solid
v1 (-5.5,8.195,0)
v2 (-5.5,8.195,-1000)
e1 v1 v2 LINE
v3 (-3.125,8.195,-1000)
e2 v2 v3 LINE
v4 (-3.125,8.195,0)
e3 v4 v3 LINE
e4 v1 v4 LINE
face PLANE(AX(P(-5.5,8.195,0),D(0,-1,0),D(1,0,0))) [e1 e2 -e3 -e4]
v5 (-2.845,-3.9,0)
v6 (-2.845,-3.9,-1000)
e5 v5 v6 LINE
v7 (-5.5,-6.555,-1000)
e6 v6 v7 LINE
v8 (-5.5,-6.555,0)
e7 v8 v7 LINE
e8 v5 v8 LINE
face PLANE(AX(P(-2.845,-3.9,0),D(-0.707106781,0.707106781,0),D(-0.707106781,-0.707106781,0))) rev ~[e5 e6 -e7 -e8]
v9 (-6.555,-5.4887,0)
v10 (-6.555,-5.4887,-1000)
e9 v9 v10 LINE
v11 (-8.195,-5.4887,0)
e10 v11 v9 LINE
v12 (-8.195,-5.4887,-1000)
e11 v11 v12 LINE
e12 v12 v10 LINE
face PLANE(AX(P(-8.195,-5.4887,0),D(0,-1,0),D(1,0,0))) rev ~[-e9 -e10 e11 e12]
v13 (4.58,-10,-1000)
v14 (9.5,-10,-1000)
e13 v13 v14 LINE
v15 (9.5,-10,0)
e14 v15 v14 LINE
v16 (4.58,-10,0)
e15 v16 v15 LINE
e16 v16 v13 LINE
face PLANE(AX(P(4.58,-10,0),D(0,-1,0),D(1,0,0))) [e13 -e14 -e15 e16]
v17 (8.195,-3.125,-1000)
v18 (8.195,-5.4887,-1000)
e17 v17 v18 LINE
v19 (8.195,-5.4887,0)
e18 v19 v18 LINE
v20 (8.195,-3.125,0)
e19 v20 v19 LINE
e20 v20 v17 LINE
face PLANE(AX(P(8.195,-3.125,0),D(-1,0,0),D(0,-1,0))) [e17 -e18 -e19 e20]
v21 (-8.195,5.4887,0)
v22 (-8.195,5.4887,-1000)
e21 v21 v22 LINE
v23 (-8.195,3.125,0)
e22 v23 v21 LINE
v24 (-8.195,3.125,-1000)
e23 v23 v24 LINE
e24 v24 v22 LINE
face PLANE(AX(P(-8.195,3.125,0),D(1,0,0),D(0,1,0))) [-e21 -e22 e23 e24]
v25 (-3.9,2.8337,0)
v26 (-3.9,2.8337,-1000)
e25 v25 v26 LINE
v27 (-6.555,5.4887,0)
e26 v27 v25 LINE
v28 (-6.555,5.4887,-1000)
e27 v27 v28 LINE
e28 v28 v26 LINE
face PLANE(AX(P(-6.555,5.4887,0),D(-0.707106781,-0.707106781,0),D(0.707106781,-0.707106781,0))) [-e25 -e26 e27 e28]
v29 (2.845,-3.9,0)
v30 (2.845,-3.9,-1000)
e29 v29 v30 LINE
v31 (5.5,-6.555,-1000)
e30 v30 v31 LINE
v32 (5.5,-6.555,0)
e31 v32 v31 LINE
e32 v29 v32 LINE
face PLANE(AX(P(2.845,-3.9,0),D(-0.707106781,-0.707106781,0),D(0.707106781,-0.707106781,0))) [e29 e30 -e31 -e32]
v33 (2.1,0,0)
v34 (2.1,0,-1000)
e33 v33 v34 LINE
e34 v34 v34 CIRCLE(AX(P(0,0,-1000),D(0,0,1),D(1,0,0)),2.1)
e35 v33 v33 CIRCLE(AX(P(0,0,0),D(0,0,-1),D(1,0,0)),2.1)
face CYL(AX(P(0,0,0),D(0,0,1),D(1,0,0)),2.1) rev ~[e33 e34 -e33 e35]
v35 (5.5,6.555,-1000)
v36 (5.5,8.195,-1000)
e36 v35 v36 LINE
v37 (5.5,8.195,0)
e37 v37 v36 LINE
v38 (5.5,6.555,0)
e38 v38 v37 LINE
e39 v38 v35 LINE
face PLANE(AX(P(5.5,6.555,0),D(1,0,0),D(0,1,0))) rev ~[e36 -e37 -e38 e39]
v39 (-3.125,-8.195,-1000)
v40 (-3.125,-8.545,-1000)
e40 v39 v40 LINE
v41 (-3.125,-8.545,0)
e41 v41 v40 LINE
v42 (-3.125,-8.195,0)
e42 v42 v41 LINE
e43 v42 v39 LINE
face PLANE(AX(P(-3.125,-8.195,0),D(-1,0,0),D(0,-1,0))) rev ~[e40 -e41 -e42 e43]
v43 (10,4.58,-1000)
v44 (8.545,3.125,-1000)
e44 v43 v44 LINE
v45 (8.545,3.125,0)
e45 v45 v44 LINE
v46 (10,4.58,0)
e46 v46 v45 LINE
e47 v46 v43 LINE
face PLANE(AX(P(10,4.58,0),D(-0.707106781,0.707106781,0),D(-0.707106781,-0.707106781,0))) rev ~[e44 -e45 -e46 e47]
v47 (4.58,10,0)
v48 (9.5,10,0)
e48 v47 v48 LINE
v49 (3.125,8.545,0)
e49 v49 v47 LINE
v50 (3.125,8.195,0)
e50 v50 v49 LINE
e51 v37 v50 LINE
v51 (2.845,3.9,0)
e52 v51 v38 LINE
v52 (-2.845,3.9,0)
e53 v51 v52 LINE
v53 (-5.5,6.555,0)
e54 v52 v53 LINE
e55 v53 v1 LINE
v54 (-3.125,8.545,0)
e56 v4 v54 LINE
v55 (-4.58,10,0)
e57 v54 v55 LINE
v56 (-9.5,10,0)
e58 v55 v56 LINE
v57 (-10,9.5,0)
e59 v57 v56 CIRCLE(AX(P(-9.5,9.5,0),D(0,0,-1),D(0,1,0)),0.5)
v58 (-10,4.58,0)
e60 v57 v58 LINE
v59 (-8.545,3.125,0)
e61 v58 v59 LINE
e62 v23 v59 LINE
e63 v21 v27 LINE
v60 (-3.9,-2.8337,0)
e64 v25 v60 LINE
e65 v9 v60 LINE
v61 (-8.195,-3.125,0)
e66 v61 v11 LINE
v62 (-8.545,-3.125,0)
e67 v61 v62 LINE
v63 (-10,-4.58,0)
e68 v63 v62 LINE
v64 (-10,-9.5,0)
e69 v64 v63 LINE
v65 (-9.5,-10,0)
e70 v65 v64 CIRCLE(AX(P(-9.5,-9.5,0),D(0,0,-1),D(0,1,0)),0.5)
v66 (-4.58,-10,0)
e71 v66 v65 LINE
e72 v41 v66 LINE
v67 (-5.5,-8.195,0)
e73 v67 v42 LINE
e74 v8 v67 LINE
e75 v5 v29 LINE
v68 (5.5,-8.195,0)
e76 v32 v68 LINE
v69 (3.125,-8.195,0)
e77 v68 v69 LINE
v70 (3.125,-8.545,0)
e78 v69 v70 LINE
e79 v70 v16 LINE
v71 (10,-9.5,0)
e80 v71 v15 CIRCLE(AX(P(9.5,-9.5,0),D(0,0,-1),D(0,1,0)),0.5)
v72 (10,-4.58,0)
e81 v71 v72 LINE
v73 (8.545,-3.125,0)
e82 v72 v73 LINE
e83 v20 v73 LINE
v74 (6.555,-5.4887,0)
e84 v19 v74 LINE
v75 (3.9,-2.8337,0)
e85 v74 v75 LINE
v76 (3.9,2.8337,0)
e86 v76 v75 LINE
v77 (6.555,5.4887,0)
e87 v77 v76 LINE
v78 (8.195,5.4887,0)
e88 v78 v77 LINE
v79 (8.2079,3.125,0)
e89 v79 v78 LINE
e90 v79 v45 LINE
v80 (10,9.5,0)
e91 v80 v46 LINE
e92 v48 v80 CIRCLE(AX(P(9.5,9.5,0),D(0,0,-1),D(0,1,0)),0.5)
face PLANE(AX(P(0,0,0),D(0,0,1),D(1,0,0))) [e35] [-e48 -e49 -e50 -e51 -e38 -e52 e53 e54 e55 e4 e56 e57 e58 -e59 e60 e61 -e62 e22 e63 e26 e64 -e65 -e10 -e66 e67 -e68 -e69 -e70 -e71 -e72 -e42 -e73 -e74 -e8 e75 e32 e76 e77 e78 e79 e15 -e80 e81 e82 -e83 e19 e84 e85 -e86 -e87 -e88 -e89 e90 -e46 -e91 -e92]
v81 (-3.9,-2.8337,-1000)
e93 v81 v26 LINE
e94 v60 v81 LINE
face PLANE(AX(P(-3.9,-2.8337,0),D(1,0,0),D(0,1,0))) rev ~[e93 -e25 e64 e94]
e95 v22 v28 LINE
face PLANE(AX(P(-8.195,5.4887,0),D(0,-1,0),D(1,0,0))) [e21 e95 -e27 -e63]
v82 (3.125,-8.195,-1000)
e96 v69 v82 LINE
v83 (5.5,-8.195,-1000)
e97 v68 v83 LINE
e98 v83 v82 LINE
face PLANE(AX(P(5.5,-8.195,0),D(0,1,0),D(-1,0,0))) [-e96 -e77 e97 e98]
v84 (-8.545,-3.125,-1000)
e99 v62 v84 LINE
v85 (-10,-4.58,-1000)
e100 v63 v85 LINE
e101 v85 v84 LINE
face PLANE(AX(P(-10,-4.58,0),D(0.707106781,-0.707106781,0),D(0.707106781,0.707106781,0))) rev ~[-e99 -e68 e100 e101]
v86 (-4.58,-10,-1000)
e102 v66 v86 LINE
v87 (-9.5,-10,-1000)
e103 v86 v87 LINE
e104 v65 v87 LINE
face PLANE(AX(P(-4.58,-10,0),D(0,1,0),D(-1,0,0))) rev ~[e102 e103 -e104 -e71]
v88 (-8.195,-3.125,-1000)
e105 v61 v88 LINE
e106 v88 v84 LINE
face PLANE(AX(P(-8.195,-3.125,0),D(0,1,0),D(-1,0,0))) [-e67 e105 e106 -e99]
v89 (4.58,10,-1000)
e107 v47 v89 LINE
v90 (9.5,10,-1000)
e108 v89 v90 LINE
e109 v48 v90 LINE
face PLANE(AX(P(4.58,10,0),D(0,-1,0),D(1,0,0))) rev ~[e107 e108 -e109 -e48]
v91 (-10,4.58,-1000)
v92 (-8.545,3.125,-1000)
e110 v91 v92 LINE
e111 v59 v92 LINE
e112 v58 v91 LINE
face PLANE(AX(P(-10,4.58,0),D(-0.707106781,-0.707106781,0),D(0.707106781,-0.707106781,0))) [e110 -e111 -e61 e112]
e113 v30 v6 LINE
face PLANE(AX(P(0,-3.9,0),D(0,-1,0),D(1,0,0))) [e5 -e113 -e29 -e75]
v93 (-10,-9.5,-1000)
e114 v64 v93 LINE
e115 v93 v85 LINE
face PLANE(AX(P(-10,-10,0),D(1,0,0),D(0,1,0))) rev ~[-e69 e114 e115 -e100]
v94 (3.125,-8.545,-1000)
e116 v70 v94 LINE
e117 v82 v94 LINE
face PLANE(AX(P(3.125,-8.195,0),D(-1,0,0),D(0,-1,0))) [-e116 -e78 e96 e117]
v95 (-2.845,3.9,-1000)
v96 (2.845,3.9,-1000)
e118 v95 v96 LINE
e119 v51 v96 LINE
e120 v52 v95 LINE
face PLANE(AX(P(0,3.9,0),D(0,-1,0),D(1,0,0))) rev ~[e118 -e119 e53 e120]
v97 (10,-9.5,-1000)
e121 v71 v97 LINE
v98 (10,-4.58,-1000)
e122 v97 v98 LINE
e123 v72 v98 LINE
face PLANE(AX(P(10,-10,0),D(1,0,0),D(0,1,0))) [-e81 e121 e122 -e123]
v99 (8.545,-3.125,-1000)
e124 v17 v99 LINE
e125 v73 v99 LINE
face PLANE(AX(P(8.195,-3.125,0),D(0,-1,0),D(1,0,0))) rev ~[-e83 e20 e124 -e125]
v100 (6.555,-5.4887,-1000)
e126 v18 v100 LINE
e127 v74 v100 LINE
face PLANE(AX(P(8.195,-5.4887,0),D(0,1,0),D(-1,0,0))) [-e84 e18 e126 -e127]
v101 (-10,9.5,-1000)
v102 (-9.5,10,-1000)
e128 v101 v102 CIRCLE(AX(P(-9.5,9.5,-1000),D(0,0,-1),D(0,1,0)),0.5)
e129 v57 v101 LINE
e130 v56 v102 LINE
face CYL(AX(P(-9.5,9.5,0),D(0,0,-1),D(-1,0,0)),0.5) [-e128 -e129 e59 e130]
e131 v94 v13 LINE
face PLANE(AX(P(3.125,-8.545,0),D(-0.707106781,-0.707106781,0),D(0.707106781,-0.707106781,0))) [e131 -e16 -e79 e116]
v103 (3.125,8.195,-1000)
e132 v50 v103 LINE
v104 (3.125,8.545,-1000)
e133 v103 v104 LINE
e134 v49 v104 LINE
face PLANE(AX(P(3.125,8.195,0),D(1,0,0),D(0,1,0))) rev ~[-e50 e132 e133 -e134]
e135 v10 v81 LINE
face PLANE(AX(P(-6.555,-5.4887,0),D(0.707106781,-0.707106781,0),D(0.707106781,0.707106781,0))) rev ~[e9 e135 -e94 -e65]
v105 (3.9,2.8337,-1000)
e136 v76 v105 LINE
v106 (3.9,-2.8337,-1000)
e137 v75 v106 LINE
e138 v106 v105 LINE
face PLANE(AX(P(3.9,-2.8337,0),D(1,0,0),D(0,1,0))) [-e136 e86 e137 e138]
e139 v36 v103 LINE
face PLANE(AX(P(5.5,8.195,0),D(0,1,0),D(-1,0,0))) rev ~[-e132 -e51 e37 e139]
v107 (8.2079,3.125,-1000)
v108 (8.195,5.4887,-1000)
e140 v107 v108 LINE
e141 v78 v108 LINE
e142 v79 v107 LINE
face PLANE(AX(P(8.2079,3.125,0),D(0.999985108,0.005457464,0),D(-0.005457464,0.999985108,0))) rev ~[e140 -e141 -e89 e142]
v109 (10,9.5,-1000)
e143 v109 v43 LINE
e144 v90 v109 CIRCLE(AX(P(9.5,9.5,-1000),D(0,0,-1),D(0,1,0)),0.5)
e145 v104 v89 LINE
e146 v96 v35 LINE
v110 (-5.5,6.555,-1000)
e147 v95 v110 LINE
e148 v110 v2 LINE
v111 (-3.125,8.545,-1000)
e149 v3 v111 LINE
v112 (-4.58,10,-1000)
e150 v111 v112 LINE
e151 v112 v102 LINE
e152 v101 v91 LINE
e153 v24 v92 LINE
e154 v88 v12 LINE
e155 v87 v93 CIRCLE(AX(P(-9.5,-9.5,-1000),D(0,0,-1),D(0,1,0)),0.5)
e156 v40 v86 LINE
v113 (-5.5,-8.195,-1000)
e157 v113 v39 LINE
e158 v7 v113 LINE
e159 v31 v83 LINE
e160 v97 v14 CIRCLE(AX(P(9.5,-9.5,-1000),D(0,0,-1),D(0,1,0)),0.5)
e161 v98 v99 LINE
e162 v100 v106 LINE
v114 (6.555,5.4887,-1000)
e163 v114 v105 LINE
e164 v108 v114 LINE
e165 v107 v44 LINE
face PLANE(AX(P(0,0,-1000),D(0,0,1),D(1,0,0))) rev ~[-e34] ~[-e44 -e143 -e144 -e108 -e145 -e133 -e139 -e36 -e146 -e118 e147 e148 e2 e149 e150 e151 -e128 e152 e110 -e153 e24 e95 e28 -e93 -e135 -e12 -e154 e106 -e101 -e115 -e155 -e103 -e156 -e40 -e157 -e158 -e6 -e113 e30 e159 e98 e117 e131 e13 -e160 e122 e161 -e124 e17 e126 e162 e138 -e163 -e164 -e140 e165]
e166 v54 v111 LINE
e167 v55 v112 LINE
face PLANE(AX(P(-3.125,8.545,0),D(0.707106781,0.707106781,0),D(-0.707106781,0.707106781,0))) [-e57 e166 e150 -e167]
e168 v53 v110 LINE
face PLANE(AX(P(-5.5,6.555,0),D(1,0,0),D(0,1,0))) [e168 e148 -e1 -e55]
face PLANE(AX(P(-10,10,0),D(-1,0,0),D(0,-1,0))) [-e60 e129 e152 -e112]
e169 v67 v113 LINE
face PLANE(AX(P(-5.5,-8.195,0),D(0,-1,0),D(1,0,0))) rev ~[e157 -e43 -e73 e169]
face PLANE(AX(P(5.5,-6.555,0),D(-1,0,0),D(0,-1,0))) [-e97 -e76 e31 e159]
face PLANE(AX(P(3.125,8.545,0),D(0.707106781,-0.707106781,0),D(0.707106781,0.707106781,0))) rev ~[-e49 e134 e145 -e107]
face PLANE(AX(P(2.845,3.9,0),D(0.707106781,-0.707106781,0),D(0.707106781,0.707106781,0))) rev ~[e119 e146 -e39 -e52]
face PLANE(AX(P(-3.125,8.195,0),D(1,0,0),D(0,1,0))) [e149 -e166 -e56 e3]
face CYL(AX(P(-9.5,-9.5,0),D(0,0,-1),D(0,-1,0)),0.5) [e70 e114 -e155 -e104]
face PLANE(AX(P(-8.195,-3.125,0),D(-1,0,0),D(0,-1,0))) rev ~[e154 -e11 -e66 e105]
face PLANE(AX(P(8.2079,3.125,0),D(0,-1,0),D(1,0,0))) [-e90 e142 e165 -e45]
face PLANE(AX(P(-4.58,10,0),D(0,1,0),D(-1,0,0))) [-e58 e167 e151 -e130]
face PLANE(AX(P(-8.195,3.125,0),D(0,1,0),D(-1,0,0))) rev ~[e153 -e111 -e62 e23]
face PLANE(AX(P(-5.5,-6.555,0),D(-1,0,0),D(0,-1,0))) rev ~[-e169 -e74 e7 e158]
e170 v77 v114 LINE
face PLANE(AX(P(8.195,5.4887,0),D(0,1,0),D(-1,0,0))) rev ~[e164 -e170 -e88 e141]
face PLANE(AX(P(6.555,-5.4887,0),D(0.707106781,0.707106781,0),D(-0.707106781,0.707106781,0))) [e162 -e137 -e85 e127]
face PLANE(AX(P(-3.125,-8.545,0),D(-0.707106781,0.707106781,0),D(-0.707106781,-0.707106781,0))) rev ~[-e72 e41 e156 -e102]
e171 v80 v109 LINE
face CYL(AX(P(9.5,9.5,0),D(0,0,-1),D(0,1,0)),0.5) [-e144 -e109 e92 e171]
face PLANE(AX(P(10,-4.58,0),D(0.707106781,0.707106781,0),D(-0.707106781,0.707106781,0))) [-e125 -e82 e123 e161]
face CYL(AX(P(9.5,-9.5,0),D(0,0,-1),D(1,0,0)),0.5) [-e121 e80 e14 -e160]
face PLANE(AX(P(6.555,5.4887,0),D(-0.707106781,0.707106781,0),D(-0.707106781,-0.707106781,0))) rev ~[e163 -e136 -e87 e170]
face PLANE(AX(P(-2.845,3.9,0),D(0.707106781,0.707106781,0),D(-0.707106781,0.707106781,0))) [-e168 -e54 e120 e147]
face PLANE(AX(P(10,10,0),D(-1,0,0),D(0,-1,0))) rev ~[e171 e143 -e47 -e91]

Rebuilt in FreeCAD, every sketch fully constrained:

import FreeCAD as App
import Part
import Sketcher

V = App.Vector
Q = App.Units.Quantity


def edges_at(feature, points):
    """Names of the edges that pass closest to the given points."""
    edges = feature.Shape.Edges
    near = lambda p: min(range(len(edges)), key=lambda i: edges[i].distToShape(Part.Vertex(*p))[0])
    return sorted({f"Edge{near(p) + 1}" for p in points})


def add_polygon(sketch, points):
    """Adds a closed chain of lines whose ends are joined by coincident constraints."""
    first, n = sketch.GeometryCount, len(points)
    for a, b in zip(points, points[1:] + points[:1]):
        sketch.addGeometry(Part.LineSegment(App.Vector(*a, 0), App.Vector(*b, 0)), False)
    for i in range(n):
        sketch.addConstraint(Sketcher.Constraint("Coincident", first + i, 2, first + (i + 1) % n, 1))

doc = App.newDocument("Part")
body = doc.addObject("PartDesign::Body", "Body")

sketch1 = doc.addObject("Sketcher::SketchObject", "Sketch")
body.addObject(sketch1)
sketch1.AttachmentSupport = (doc.XY_Plane, [""])
sketch1.MapMode = "FlatFace"
add_polygon(sketch1, [(3.9, -2.8337), (3.9, 2.8337), (6.555, 5.4887), (8.195, 5.4887), (8.2079, 3.125), (8.545, 3.125), (10, 4.58), (10, 10), (4.58, 10), (3.125, 8.545), (3.125, 8.195), (5.5, 8.195), (5.5, 6.555), (2.845, 3.9), (-2.845, 3.9), (-5.5, 6.555), (-5.5, 8.195), (-3.125, 8.195), (-3.125, 8.545), (-4.58, 10), (-10, 10), (-10, 4.58), (-8.545, 3.125), (-8.195, 3.125), (-8.195, 5.4887), (-6.555, 5.4887), (-3.9, 2.8337), (-3.9, -2.8337), (-6.555, -5.4887), (-8.195, -5.4887), (-8.195, -3.125), (-8.545, -3.125), (-10, -4.58), (-10, -10), (-4.58, -10), (-3.125, -8.545), (-3.125, -8.195), (-5.5, -8.195), (-5.5, -6.555), (-2.845, -3.9), (2.845, -3.9), (5.5, -6.555), (5.5, -8.195), (3.125, -8.195), (3.125, -8.545), (4.58, -10), (10, -10), (10, -4.58), (8.545, -3.125), (8.195, -3.125), (8.195, -5.4887), (6.555, -5.4887)])
sketch1.addGeometry(Part.Circle(V(0, 0, 0), V(0, 0, 1), 2.1), False)
sketch1.addConstraint([
    Sketcher.Constraint("Vertical", 0),
    Sketcher.Constraint("Horizontal", 2),
    Sketcher.Constraint("Horizontal", 4),
    Sketcher.Constraint("Vertical", 6),
    Sketcher.Constraint("Horizontal", 7),
    Sketcher.Constraint("Vertical", 9),
    Sketcher.Constraint("Horizontal", 10),
    Sketcher.Constraint("Vertical", 11),
    Sketcher.Constraint("Horizontal", 13),
    Sketcher.Constraint("Vertical", 15),
    Sketcher.Constraint("Horizontal", 16),
    Sketcher.Constraint("Vertical", 17),
    Sketcher.Constraint("Horizontal", 19),
    Sketcher.Constraint("Vertical", 20),
    Sketcher.Constraint("Horizontal", 22),
    Sketcher.Constraint("Vertical", 23),
    Sketcher.Constraint("Horizontal", 24),
    Sketcher.Constraint("Vertical", 26),
    Sketcher.Constraint("Horizontal", 28),
    Sketcher.Constraint("Vertical", 29),
    Sketcher.Constraint("Horizontal", 30),
    Sketcher.Constraint("Vertical", 32),
    Sketcher.Constraint("Horizontal", 33),
    Sketcher.Constraint("Vertical", 35),
    Sketcher.Constraint("Horizontal", 36),
    Sketcher.Constraint("Vertical", 37),
    Sketcher.Constraint("Horizontal", 39),
    Sketcher.Constraint("Vertical", 41),
    Sketcher.Constraint("Horizontal", 42),
    Sketcher.Constraint("Vertical", 43),
    Sketcher.Constraint("Horizontal", 45),
    Sketcher.Constraint("Vertical", 46),
    Sketcher.Constraint("Horizontal", 48),
    Sketcher.Constraint("Vertical", 49),
    Sketcher.Constraint("Horizontal", 50),
    Sketcher.Constraint("Coincident", 52, 3, -1, 1),
    Sketcher.Constraint("Symmetric", 0, 2, 26, 2, -1, 1),
    Sketcher.Constraint("Symmetric", 1, 2, 27, 2, -1, 1),
    Sketcher.Constraint("Symmetric", 4, 2, 30, 2, -1, 1),
    Sketcher.Constraint("Symmetric", 5, 2, 31, 2, -1, 1),
    Sketcher.Constraint("Symmetric", 7, 2, 33, 2, -1, 1),
    Sketcher.Constraint("Symmetric", 8, 2, 34, 2, -1, 1),
    Sketcher.Constraint("Symmetric", 10, 2, 36, 2, -1, 1),
    Sketcher.Constraint("Symmetric", 12, 2, 38, 2, -1, 1),
    Sketcher.Constraint("Symmetric", 14, 2, 40, 2, -1, 1),
    Sketcher.Constraint("Symmetric", 16, 2, 42, 2, -1, 1),
    Sketcher.Constraint("Symmetric", 18, 2, 44, 2, -1, 1),
    Sketcher.Constraint("Symmetric", 20, 2, 46, 2, -1, 1),
    Sketcher.Constraint("Symmetric", 21, 2, 47, 2, -1, 1),
    Sketcher.Constraint("Symmetric", 23, 2, 49, 2, -1, 1),
    Sketcher.Constraint("Symmetric", 11, 2, 14, 2, -2),
    Sketcher.Constraint("Symmetric", 9, 2, 16, 2, -2),
    Sketcher.Constraint("Symmetric", 7, 2, 18, 2, -2),
    Sketcher.Constraint("Symmetric", 5, 2, 20, 2, -2),
    Sketcher.Constraint("Symmetric", 4, 2, 21, 2, -2),
    Sketcher.Constraint("Symmetric", 2, 2, 23, 2, -2),
    Sketcher.Constraint("Parallel", 1, 5),
    Sketcher.Constraint("Parallel", 5, 8),
    Sketcher.Constraint("Parallel", 8, 12),
    Sketcher.Constraint("Perpendicular", 12, 14),
    Sketcher.Constraint("Parallel", 14, 18),
    Sketcher.Constraint("Parallel", 18, 21),
    Sketcher.Constraint("Parallel", 21, 25),
    Sketcher.Constraint("Parallel", 34, 38),
    Sketcher.Constraint("Perpendicular", 38, 40),
    Sketcher.Constraint("Parallel", 40, 44),
    Sketcher.Constraint("Parallel", 47, 51),
    Sketcher.Constraint("Horizontal", 0, 2, 25, 2),
    Sketcher.Constraint("Horizontal", 26, 2, 51, 2),
    Sketcher.Constraint("Vertical", 23, 2, 28, 2),
    Sketcher.Constraint("Equal", 45, 6),
    Sketcher.Constraint("Equal", 48, 9),
    Sketcher.Constraint("Equal", 50, 11),
    Sketcher.Constraint("Equal", 5, 8),
    Sketcher.Constraint("Equal", 1, 12),
    Sketcher.Constraint("Diameter", 52, Q("4.2 mm")),
    Sketcher.Constraint("DistanceX", 2, 1, 2, 2, Q("1.64 mm")),
    Sketcher.Constraint("DistanceX", 22, 1, 22, 2, Q("0.35 mm")),
    Sketcher.Constraint("DistanceX", 16, 2, 9, 2, Q("6.25 mm")),
    Sketcher.Constraint("DistanceY", 29, 2, 22, 2, Q("6.25 mm")),
    Sketcher.Constraint("DistanceX", -1, 1, 5, 2, Q("10 mm")),
    Sketcher.Constraint("DistanceX", 7, 2, 7, 1, Q("5.42 mm")),
    Sketcher.Constraint("DistanceX", 13, 2, 13, 1, Q("5.69 mm")),
    Sketcher.Constraint("DistanceX", -1, 1, 0, 2, Q("3.9 mm")),
    Sketcher.Constraint("DistanceX", 4, 1, 4, 2, Q("0.337 mm")),
    Sketcher.Constraint("DistanceY", 0, 1, 0, 2, Q("5.6674 mm")),
])
pad1 = doc.addObject("PartDesign::Pad", "Pad")
body.addObject(pad1)
pad1.Profile = sketch1
pad1.Length = 1000
pad1.Reversed = True
doc.recompute()

fillet = doc.addObject("PartDesign::Fillet", "Fillet")
body.addObject(fillet)
fillet.Base = (pad1, edges_at(pad1, [
    (10, 10, -500),
    (-10, 10, -500),
    (10, -10, -500),
    (-10, -10, -500),
]))
fillet.Radius = 0.5

doc.recompute()
